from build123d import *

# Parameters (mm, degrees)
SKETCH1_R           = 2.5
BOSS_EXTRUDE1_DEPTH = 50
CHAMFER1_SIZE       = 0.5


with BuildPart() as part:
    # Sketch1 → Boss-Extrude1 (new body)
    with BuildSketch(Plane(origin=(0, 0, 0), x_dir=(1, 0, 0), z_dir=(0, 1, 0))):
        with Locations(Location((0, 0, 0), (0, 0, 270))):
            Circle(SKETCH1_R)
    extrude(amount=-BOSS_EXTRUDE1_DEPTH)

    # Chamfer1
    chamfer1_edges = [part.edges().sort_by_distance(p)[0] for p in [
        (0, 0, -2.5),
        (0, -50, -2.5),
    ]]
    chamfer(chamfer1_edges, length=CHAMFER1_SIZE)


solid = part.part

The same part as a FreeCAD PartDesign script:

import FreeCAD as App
import Part
import Sketcher
from FreeCAD import Vector
Q = App.Units.Quantity


def edges_at(feature, points):
    """Names of the edges that pass closest to the given points."""
    edges = feature.Shape.Edges
    near = lambda p: min(range(len(edges)), key=lambda i: edges[i].distToShape(Part.Vertex(*p))[0])
    return sorted({f"Edge{near(p) + 1}" for p in points})

doc = App.newDocument("Part")
params = doc.addObject("Spreadsheet::Sheet", "Params")
for row, (alias, value) in enumerate([
    ("sketch1_diameter", "5 mm"),
    ("pad1_length", "50 mm"),
    ("chamfer_size", "0.5 mm"),
], start=1):
    params.set(f"A{row}", alias)
    params.set(f"B{row}", "=" + value)
    params.setAlias(f"B{row}", alias)

body = doc.addObject("PartDesign::Body", "Body")

# Sketch on XZ plane
sketch1 = body.newObject("Sketcher::SketchObject", "Sketch")
sketch1.AttachmentSupport = (doc.getObject("XZ_Plane"), [""])
sketch1.MapMode = "FlatFace"
sketch1.addGeometry(Part.Circle(Vector(0, 0, 0), Vector(0, 0, 1), 2.5), False)
sketch1.addConstraint([
    Sketcher.Constraint("Coincident", 0, 3, -1, 1),
    Sketcher.Constraint("Diameter", 0, Q("5 mm")),
])
sketch1.setExpression("Constraints[1]", "Params.sketch1_diameter")
pad1 = body.newObject("PartDesign::Pad", "Pad")
pad1.Profile = sketch1
pad1.setExpression("Length", "Params.pad1_length")
doc.recompute()

chamfer = body.newObject("PartDesign::Chamfer", "Chamfer")
chamfer.Base = (pad1, edges_at(pad1, [(0, 0, -2.5), (0, -50, -2.5)]))
chamfer.setExpression("Size", "Params.chamfer_size")

doc.recompute()
